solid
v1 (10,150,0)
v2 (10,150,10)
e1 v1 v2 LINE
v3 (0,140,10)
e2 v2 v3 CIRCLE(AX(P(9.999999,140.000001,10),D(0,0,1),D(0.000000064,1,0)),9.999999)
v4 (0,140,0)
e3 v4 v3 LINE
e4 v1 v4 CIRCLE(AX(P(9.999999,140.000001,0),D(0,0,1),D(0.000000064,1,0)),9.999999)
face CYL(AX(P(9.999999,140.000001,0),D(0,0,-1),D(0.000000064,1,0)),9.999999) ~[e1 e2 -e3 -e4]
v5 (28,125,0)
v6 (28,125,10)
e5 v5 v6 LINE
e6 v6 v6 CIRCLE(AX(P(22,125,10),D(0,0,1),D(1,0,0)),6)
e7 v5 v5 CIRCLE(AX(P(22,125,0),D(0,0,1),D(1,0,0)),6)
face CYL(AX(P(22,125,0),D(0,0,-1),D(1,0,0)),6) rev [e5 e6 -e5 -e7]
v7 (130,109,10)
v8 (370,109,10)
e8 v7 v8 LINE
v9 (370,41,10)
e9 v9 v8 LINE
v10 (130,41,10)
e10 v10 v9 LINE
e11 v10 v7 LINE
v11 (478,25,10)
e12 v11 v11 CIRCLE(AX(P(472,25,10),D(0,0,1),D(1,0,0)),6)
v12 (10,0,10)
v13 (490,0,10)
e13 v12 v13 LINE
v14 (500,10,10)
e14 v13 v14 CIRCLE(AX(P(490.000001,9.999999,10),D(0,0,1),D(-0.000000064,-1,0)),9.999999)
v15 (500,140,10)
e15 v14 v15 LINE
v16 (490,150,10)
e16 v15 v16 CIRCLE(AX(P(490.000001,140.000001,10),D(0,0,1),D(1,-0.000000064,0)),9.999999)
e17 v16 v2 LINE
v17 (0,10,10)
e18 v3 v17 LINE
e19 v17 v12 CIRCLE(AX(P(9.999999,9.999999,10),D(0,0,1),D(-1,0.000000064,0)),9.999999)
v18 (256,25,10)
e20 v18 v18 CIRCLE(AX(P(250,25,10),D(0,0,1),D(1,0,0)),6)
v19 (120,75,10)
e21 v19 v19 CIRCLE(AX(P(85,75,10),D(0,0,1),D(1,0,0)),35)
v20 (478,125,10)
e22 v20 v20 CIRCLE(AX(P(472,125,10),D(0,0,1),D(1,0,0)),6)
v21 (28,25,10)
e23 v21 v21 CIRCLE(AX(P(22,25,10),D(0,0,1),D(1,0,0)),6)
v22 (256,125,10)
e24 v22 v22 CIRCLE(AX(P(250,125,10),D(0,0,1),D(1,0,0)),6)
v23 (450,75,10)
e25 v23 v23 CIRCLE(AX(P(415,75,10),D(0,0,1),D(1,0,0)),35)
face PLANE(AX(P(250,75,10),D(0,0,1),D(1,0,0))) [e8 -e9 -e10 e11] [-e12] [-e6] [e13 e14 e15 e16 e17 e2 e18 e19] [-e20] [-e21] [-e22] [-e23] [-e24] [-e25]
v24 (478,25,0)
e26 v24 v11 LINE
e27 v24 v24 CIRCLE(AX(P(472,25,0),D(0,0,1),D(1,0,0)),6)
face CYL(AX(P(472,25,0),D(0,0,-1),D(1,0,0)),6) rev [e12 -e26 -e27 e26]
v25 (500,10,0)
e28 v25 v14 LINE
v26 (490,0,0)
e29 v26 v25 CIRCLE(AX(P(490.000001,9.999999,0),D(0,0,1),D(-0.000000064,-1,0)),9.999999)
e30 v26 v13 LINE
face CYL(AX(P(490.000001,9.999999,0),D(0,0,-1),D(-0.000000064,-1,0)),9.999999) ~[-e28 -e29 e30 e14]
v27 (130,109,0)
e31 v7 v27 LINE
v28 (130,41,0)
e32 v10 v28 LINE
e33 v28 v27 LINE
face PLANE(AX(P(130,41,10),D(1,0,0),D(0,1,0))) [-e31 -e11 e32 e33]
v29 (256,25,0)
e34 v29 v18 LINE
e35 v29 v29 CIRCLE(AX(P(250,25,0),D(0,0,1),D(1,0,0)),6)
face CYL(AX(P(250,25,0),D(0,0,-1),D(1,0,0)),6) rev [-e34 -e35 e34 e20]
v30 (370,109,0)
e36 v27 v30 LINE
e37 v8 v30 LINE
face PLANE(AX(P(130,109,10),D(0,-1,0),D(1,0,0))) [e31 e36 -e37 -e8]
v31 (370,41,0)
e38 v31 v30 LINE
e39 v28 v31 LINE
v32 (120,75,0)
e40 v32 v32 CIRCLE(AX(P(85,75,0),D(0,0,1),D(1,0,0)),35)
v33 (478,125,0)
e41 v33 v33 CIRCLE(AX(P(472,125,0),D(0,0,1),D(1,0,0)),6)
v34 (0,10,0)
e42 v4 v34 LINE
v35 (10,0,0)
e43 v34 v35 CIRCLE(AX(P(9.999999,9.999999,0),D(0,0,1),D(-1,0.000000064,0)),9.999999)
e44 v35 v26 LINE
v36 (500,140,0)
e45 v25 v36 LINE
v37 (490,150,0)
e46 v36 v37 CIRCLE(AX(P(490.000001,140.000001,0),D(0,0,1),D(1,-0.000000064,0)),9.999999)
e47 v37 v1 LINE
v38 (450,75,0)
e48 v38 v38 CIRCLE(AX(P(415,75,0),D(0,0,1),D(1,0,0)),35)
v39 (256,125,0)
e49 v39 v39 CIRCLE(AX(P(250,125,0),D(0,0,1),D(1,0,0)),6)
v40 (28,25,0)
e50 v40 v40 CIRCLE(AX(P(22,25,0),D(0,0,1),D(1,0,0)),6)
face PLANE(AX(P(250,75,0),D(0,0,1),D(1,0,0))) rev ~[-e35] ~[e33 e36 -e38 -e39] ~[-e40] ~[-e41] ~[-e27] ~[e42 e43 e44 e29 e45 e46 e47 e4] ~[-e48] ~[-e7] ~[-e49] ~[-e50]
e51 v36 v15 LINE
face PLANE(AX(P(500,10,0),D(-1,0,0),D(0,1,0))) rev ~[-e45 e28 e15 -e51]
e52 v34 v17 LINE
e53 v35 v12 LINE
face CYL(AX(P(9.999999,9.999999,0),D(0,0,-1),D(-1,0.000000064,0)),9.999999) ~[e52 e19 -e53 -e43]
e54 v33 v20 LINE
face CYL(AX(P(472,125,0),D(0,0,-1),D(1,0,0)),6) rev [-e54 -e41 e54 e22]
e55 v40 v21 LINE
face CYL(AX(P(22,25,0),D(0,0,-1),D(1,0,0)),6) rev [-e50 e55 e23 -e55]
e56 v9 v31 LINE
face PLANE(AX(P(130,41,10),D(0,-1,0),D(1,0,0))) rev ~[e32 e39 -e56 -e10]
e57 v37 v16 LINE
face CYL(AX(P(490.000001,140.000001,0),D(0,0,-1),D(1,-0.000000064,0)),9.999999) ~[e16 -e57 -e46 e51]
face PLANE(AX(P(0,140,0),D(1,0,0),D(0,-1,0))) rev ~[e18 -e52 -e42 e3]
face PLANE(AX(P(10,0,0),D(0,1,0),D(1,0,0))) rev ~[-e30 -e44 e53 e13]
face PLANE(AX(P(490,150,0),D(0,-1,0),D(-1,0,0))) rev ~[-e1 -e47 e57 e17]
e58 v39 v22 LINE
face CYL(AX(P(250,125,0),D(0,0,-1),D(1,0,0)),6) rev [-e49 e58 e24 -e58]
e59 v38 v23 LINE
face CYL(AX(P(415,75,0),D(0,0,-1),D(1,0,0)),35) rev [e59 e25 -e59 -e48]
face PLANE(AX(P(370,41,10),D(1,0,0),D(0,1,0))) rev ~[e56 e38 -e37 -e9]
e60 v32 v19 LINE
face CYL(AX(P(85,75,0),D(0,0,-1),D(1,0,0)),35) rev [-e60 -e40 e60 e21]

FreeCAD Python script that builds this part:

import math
import FreeCAD as App
import Part
import Sketcher
from FreeCAD import Vector

doc = App.newDocument("Part")
body = doc.addObject("PartDesign::Body", "Body")

sketch1 = body.newObject("Sketcher::SketchObject", "Sketch")
sketch1.AttachmentSupport = (doc.getObject("XY_Plane"), [""])
sketch1.MapMode = "FlatFace"
sketch1.addGeometry([
    Part.ArcOfCircle(Part.Circle(Vector(10, 10, 0), Vector(0, 0, 1), 10), math.radians(180), math.radians(270)),
    Part.LineSegment(Vector(10, 0, 0), Vector(490, 0, 0)),
    Part.ArcOfCircle(Part.Circle(Vector(490, 10, 0), Vector(0, 0, 1), 10), math.radians(-90), math.radians(0)),
    Part.LineSegment(Vector(500, 10, 0), Vector(500, 140, 0)),
    Part.ArcOfCircle(Part.Circle(Vector(490, 140, 0), Vector(0, 0, 1), 10), math.radians(0), math.radians(90)),
    Part.LineSegment(Vector(490, 150, 0), Vector(10, 150, 0)),
    Part.ArcOfCircle(Part.Circle(Vector(10, 140, 0), Vector(0, 0, 1), 10), math.radians(90), math.radians(180)),
    Part.LineSegment(Vector(0, 140, 0), Vector(0, 10, 0)),
    Part.Circle(Vector(22, 25, 0), Vector(0, 0, 1), 6),
    Part.Circle(Vector(250, 25, 0), Vector(0, 0, 1), 6),
    Part.Circle(Vector(472, 25, 0), Vector(0, 0, 1), 6),
    Part.Circle(Vector(85, 75, 0), Vector(0, 0, 1), 35),
    Part.Circle(Vector(22, 125, 0), Vector(0, 0, 1), 6),
    Part.Circle(Vector(415, 75, 0), Vector(0, 0, 1), 35),
    Part.Circle(Vector(250, 125, 0), Vector(0, 0, 1), 6),
    Part.Circle(Vector(472, 125, 0), Vector(0, 0, 1), 6),
], False)
sketch1.addConstraint([
    Sketcher.Constraint("Tangent", 0, 2, 1, 1),
    Sketcher.Constraint("Tangent", 1, 2, 2, 1),
    Sketcher.Constraint("Tangent", 2, 2, 3, 1),
    Sketcher.Constraint("Tangent", 3, 2, 4, 1),
    Sketcher.Constraint("Tangent", 4, 2, 5, 1),
    Sketcher.Constraint("Tangent", 5, 2, 6, 1),
    Sketcher.Constraint("Tangent", 6, 2, 7, 1),
    Sketcher.Constraint("Tangent", 7, 2, 0, 1),
    Sketcher.Constraint("Horizontal", 1),
    Sketcher.Constraint("Vertical", 3),
    Sketcher.Constraint("Horizontal", 5),
    Sketcher.Constraint("Vertical", 7),
    Sketcher.Constraint("Equal", 0, 2),
    Sketcher.Constraint("Equal", 2, 4),
    Sketcher.Constraint("Equal", 4, 6),
    Sketcher.Constraint("Equal", 8, 9),
    Sketcher.Constraint("Equal", 9, 10),
    Sketcher.Constraint("Equal", 10, 12),
    Sketcher.Constraint("Equal", 11, 13),
    Sketcher.Constraint("Equal", 12, 14),
    Sketcher.Constraint("Equal", 14, 15),
    Sketcher.Constraint("PointOnObject", 0, 2, -1),
    Sketcher.Constraint("PointOnObject", 6, 2, -2),
    Sketcher.Constraint("Horizontal", 8, 3, 9, 3),
    Sketcher.Constraint("Horizontal", 9, 3, 10, 3),
    Sketcher.Constraint("Horizontal", 11, 3, 13, 3),
    Sketcher.Constraint("Horizontal", 12, 3, 14, 3),
    Sketcher.Constraint("Horizontal", 14, 3, 15, 3),
    Sketcher.Constraint("Vertical", 8, 3, 12, 3),
    Sketcher.Constraint("Vertical", 9, 3, 14, 3),
    Sketcher.Constraint("Vertical", 10, 3, 15, 3),
    Sketcher.Constraint("Diameter", 8, 12.0),
    Sketcher.Constraint("Diameter", 11, 70.0),
    Sketcher.Constraint("Radius", 0, 9.999999),
    Sketcher.Constraint("DistanceX", 1, 1, 1, 2, 480.0),
    Sketcher.Constraint("DistanceY", 3, 1, 3, 2, 130.0),
    Sketcher.Constraint("DistanceX", -1, 1, 8, 3, 22.0),
    Sketcher.Constraint("DistanceY", -1, 1, 8, 3, 25.0),
    Sketcher.Constraint("DistanceX", -1, 1, 9, 3, 250.0),
    Sketcher.Constraint("DistanceX", -1, 1, 10, 3, 472.0),
    Sketcher.Constraint("DistanceX", -1, 1, 11, 3, 85.0),
    Sketcher.Constraint("DistanceY", -1, 1, 11, 3, 75.0),
    Sketcher.Constraint("DistanceY", -1, 1, 12, 3, 125.0),
    Sketcher.Constraint("DistanceX", -1, 1, 13, 3, 415.0),
])
pad1 = body.newObject("PartDesign::Pad", "Pad")
pad1.Profile = sketch1
pad1.Length = 10

sketch2 = body.newObject("Sketcher::SketchObject", "Sketch001")
sketch2.AttachmentSupport = (doc.getObject("XY_Plane"), [""])
sketch2.MapMode = "FlatFace"
sketch2.AttachmentOffset = App.Placement(Vector(0, 0, 10), App.Rotation())
sketch2.addGeometry([
    Part.LineSegment(Vector(130, 109, 0), Vector(130, 41, 0)),
    Part.LineSegment(Vector(130, 41, 0), Vector(370, 41, 0)),
    Part.LineSegment(Vector(370, 41, 0), Vector(370, 109, 0)),
    Part.LineSegment(Vector(370, 109, 0), Vector(130, 109, 0)),
], False)
sketch2.addConstraint([
    Sketcher.Constraint("Coincident", 0, 2, 1, 1),
    Sketcher.Constraint("Coincident", 1, 2, 2, 1),
    Sketcher.Constraint("Coincident", 2, 2, 3, 1),
    Sketcher.Constraint("Coincident", 3, 2, 0, 1),
    Sketcher.Constraint("Vertical", 0),
    Sketcher.Constraint("Horizontal", 1),
    Sketcher.Constraint("Vertical", 2),
    Sketcher.Constraint("Horizontal", 3),
    Sketcher.Constraint("DistanceX", 1, 1, 1, 2, 240.0),
    Sketcher.Constraint("DistanceY", 0, 2, 0, 1, 68.0),
    Sketcher.Constraint("DistanceX", -1, 1, 0, 2, 130.0),
    Sketcher.Constraint("DistanceY", -1, 1, 0, 2, 41.0),
])
pocket1 = body.newObject("PartDesign::Pocket", "Pocket")
pocket1.Profile = sketch2
pocket1.Length = 25

doc.recompute()
